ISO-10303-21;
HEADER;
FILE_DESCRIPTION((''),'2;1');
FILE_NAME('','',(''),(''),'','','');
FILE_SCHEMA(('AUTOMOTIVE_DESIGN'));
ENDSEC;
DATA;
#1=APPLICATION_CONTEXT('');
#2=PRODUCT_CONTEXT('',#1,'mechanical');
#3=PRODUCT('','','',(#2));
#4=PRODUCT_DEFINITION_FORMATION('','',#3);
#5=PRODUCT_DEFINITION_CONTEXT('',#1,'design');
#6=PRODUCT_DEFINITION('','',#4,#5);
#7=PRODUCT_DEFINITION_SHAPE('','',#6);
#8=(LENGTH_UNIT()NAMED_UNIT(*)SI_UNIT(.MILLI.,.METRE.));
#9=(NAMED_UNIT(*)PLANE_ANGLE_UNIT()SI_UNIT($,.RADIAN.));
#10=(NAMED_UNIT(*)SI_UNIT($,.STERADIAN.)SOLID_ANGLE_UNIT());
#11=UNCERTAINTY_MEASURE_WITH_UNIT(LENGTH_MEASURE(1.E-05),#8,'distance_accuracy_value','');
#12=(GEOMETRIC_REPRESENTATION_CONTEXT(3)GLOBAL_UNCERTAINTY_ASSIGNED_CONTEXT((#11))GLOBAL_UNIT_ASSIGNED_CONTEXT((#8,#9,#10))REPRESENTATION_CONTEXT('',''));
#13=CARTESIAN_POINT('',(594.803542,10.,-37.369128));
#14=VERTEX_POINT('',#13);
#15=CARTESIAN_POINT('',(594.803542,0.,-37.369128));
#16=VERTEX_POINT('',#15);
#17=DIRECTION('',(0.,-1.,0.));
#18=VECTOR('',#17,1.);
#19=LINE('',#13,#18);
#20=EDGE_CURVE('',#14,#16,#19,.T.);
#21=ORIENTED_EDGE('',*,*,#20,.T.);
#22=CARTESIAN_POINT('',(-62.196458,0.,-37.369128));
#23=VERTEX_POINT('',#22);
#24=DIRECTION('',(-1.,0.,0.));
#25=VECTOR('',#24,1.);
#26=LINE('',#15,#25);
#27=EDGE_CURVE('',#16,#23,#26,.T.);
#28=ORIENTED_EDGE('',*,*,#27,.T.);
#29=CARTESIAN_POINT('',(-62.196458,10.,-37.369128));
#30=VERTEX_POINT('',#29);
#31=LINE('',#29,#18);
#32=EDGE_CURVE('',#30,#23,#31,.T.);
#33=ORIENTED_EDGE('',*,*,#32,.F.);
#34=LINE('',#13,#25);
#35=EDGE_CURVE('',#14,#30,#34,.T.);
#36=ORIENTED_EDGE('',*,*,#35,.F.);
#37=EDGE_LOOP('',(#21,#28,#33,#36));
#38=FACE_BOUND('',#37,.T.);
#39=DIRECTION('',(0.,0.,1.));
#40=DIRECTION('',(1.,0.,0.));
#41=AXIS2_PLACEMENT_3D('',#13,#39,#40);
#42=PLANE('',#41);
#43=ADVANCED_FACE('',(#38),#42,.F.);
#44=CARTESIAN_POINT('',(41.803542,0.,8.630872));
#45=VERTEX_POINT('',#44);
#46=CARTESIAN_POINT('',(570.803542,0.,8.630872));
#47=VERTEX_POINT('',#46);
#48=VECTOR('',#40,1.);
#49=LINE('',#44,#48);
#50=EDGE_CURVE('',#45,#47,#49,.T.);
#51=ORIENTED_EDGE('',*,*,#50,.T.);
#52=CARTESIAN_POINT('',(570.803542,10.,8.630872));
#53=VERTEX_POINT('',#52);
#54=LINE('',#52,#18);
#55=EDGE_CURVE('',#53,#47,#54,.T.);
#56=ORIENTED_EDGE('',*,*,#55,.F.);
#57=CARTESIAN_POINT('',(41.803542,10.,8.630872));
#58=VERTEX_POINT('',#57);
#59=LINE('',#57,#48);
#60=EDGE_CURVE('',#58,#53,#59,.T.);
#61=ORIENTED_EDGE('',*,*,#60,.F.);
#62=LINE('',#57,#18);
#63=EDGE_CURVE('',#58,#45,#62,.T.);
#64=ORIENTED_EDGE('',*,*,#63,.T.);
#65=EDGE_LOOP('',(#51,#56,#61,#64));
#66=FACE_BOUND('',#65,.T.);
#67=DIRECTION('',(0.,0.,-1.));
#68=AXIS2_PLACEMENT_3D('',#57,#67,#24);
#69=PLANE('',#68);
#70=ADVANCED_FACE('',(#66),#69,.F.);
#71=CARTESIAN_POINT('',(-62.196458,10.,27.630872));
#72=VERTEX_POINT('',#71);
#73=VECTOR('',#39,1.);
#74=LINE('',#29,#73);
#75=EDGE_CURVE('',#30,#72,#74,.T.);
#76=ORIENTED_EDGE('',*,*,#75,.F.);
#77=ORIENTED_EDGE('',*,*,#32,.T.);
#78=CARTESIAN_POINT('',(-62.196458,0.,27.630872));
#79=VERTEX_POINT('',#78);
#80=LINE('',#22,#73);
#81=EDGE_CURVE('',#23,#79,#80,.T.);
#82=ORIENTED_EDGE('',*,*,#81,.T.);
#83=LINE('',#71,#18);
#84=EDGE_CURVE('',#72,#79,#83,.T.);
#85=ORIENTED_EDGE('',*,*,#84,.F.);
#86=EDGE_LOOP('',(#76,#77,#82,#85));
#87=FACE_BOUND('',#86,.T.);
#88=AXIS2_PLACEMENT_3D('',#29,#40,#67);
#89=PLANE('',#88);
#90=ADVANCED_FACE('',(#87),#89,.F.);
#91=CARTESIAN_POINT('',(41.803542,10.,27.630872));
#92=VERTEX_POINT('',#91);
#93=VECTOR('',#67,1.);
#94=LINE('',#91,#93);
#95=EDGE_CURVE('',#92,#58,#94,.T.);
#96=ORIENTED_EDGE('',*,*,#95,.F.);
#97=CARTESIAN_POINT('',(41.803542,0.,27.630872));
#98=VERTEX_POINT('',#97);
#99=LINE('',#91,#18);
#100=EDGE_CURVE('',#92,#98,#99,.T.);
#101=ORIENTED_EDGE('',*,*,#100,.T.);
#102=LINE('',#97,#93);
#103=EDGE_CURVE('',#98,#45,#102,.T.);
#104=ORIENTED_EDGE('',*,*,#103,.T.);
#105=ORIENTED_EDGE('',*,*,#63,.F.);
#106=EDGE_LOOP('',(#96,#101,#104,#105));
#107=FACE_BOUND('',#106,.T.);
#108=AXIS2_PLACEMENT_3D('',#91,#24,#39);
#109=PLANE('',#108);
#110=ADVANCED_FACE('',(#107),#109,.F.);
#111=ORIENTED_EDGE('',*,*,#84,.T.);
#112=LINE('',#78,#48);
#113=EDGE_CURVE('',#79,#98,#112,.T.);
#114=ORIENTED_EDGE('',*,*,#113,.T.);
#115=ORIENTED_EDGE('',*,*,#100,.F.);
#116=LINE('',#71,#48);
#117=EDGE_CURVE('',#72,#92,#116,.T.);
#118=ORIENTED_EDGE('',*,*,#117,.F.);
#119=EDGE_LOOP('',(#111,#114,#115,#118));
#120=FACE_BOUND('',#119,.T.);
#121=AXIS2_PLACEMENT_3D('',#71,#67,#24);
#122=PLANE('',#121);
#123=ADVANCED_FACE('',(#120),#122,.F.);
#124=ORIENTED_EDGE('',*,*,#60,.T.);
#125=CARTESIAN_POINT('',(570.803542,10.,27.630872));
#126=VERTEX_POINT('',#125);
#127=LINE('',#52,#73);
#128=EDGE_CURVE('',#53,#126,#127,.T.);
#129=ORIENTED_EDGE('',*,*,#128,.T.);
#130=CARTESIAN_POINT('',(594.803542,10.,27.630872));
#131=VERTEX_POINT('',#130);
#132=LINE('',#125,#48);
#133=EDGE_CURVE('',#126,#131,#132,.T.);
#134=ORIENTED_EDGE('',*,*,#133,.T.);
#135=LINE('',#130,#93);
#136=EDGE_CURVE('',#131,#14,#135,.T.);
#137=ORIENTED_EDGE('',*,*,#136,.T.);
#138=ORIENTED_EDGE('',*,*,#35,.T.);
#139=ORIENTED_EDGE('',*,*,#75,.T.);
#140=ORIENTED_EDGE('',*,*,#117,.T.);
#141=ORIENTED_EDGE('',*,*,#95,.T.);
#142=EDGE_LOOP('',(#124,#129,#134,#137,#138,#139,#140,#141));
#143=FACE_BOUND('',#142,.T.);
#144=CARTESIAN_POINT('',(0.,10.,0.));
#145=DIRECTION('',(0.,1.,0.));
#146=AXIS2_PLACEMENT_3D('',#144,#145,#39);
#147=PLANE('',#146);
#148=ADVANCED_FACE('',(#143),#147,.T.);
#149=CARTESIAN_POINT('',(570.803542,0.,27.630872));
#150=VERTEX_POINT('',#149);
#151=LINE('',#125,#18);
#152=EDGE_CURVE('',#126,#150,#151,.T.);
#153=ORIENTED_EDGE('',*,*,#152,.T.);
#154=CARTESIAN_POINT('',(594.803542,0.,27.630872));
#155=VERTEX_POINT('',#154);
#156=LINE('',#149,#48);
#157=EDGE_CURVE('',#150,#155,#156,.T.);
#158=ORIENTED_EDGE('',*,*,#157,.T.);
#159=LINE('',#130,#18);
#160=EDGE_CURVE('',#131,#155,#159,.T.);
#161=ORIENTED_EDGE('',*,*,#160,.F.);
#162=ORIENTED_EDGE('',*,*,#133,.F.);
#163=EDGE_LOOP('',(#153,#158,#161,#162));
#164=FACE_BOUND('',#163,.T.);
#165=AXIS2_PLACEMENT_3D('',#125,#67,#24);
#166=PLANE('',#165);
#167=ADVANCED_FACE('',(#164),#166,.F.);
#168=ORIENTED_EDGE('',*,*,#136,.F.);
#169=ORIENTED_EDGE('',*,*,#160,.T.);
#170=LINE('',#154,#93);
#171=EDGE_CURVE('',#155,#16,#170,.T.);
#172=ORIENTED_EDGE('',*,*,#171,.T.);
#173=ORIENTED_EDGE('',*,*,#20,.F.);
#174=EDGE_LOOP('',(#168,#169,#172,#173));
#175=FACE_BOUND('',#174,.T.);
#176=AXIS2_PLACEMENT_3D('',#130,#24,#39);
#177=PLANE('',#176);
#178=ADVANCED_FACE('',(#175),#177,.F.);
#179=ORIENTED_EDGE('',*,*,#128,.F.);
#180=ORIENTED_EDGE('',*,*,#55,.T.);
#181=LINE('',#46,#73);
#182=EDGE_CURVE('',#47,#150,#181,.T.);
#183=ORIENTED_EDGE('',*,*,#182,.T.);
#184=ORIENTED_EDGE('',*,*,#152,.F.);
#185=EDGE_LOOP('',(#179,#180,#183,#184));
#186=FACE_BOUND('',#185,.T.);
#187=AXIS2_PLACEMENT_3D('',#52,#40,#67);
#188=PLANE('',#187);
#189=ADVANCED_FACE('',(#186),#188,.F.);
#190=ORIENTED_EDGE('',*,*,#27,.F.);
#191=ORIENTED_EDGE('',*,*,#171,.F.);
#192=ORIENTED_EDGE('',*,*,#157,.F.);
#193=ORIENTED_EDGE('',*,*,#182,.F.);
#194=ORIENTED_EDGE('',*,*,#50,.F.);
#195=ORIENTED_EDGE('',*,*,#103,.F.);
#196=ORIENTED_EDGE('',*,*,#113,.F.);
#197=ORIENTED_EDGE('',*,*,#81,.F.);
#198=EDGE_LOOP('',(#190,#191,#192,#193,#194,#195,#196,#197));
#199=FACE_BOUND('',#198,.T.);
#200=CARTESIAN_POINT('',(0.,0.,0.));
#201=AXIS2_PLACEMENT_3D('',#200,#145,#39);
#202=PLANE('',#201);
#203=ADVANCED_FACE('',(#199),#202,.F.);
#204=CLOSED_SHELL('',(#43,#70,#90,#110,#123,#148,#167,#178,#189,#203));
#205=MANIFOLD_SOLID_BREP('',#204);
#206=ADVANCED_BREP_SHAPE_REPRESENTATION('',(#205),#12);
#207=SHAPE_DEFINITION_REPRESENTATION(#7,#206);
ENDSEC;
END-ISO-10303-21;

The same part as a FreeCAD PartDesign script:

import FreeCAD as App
import Part
import Sketcher
from FreeCAD import Vector

doc = App.newDocument("Part")
body = doc.addObject("PartDesign::Body", "Body")

sketch1 = body.newObject("Sketcher::SketchObject", "Sketch")
sketch1.AttachmentSupport = (doc.getObject("XZ_Plane"), [""])
sketch1.MapMode = "FlatFace"
sketch1.addGeometry([
    Part.LineSegment(Vector(-62, -37, 0), Vector(-62, 28, 0)),
    Part.LineSegment(Vector(-62, 28, 0), Vector(42, 28, 0)),
    Part.LineSegment(Vector(42, 28, 0), Vector(42, 9, 0)),
    Part.LineSegment(Vector(42, 9, 0), Vector(571, 9, 0)),
    Part.LineSegment(Vector(571, 9, 0), Vector(571, 28, 0)),
    Part.LineSegment(Vector(571, 28, 0), Vector(595, 28, 0)),
    Part.LineSegment(Vector(595, 28, 0), Vector(595, -37, 0)),
    Part.LineSegment(Vector(595, -37, 0), Vector(-62, -37, 0)),
], False)
sketch1.addConstraint([
    Sketcher.Constraint("Coincident", 0, 2, 1, 1),
    Sketcher.Constraint("Coincident", 1, 2, 2, 1),
    Sketcher.Constraint("Coincident", 2, 2, 3, 1),
    Sketcher.Constraint("Coincident", 3, 2, 4, 1),
    Sketcher.Constraint("Coincident", 4, 2, 5, 1),
    Sketcher.Constraint("Coincident", 5, 2, 6, 1),
    Sketcher.Constraint("Coincident", 6, 2, 7, 1),
    Sketcher.Constraint("Coincident", 7, 2, 0, 1),
    Sketcher.Constraint("Vertical", 0),
    Sketcher.Constraint("Horizontal", 1),
    Sketcher.Constraint("Vertical", 2),
    Sketcher.Constraint("Horizontal", 3),
    Sketcher.Constraint("Vertical", 4),
    Sketcher.Constraint("Horizontal", 5),
    Sketcher.Constraint("Vertical", 6),
    Sketcher.Constraint("Horizontal", 7),
    Sketcher.Constraint("Horizontal", 1, 2, 4, 2),
    Sketcher.Constraint("DistanceX", 1, 1, 1, 2, 104.0),
    Sketcher.Constraint("DistanceX", 3, 1, 3, 2, 529.0),
    Sketcher.Constraint("DistanceX", 5, 1, 5, 2, 24.0),
    Sketcher.Constraint("DistanceY", 0, 1, 0, 2, 65.0),
    Sketcher.Constraint("DistanceY", 2, 2, 2, 1, 19.0),
    Sketcher.Constraint("DistanceX", 0, 2, -1, 1, 62.196458),
    Sketcher.Constraint("DistanceY", -1, 1, 0, 2, 27.630872),
])
pad1 = body.newObject("PartDesign::Pad", "Pad")
pad1.Profile = sketch1
pad1.Length = 10
pad1.Reversed = True

doc.recompute()
